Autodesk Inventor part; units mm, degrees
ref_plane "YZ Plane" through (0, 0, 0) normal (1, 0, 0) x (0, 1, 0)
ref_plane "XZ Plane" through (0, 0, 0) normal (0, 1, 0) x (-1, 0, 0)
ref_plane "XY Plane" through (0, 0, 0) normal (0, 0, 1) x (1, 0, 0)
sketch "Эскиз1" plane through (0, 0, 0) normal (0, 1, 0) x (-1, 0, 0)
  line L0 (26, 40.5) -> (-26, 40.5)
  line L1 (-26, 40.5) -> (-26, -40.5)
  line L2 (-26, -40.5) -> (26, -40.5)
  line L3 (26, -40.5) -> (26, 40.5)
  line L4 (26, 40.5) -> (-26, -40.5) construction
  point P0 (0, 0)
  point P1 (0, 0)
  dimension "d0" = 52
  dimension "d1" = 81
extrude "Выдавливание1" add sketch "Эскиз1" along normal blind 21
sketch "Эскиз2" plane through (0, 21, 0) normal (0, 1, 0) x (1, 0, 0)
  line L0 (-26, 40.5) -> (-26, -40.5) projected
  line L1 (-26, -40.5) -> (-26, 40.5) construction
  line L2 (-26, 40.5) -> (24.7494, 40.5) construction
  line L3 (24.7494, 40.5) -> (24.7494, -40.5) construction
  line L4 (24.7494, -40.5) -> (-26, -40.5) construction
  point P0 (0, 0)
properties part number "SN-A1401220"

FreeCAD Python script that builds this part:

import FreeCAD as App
import Part
import Sketcher
from FreeCAD import Vector
Q = App.Units.Quantity

doc = App.newDocument("Part")
body = doc.addObject("PartDesign::Body", "Body")

sketch1 = body.newObject("Sketcher::SketchObject", "Sketch")
sketch1.AttachmentSupport = (doc.getObject("XZ_Plane"), [""])
sketch1.MapMode = "FlatFace"
sketch1.addGeometry([
    Part.LineSegment(Vector(-26, -40, 0), Vector(-26, 40, 0)),
    Part.LineSegment(Vector(-26, 40, 0), Vector(26, 40, 0)),
    Part.LineSegment(Vector(26, 40, 0), Vector(26, -40, 0)),
    Part.LineSegment(Vector(26, -40, 0), Vector(-26, -40, 0)),
], False)
sketch1.addConstraint([
    Sketcher.Constraint("Coincident", 0, 2, 1, 1),
    Sketcher.Constraint("Coincident", 1, 2, 2, 1),
    Sketcher.Constraint("Coincident", 2, 2, 3, 1),
    Sketcher.Constraint("Coincident", 3, 2, 0, 1),
    Sketcher.Constraint("Vertical", 0),
    Sketcher.Constraint("Horizontal", 1),
    Sketcher.Constraint("Vertical", 2),
    Sketcher.Constraint("Horizontal", 3),
    Sketcher.Constraint("Symmetric", 0, 2, 2, 2, -1, 1),
    Sketcher.Constraint("DistanceX", 1, 1, 1, 2, Q("52 mm")),
    Sketcher.Constraint("DistanceY", 0, 1, 0, 2, Q("81 mm")),
])
pad1 = body.newObject("PartDesign::Pad", "Pad")
pad1.Profile = sketch1
pad1.Length = 21
pad1.Reversed = True

doc.recompute()
